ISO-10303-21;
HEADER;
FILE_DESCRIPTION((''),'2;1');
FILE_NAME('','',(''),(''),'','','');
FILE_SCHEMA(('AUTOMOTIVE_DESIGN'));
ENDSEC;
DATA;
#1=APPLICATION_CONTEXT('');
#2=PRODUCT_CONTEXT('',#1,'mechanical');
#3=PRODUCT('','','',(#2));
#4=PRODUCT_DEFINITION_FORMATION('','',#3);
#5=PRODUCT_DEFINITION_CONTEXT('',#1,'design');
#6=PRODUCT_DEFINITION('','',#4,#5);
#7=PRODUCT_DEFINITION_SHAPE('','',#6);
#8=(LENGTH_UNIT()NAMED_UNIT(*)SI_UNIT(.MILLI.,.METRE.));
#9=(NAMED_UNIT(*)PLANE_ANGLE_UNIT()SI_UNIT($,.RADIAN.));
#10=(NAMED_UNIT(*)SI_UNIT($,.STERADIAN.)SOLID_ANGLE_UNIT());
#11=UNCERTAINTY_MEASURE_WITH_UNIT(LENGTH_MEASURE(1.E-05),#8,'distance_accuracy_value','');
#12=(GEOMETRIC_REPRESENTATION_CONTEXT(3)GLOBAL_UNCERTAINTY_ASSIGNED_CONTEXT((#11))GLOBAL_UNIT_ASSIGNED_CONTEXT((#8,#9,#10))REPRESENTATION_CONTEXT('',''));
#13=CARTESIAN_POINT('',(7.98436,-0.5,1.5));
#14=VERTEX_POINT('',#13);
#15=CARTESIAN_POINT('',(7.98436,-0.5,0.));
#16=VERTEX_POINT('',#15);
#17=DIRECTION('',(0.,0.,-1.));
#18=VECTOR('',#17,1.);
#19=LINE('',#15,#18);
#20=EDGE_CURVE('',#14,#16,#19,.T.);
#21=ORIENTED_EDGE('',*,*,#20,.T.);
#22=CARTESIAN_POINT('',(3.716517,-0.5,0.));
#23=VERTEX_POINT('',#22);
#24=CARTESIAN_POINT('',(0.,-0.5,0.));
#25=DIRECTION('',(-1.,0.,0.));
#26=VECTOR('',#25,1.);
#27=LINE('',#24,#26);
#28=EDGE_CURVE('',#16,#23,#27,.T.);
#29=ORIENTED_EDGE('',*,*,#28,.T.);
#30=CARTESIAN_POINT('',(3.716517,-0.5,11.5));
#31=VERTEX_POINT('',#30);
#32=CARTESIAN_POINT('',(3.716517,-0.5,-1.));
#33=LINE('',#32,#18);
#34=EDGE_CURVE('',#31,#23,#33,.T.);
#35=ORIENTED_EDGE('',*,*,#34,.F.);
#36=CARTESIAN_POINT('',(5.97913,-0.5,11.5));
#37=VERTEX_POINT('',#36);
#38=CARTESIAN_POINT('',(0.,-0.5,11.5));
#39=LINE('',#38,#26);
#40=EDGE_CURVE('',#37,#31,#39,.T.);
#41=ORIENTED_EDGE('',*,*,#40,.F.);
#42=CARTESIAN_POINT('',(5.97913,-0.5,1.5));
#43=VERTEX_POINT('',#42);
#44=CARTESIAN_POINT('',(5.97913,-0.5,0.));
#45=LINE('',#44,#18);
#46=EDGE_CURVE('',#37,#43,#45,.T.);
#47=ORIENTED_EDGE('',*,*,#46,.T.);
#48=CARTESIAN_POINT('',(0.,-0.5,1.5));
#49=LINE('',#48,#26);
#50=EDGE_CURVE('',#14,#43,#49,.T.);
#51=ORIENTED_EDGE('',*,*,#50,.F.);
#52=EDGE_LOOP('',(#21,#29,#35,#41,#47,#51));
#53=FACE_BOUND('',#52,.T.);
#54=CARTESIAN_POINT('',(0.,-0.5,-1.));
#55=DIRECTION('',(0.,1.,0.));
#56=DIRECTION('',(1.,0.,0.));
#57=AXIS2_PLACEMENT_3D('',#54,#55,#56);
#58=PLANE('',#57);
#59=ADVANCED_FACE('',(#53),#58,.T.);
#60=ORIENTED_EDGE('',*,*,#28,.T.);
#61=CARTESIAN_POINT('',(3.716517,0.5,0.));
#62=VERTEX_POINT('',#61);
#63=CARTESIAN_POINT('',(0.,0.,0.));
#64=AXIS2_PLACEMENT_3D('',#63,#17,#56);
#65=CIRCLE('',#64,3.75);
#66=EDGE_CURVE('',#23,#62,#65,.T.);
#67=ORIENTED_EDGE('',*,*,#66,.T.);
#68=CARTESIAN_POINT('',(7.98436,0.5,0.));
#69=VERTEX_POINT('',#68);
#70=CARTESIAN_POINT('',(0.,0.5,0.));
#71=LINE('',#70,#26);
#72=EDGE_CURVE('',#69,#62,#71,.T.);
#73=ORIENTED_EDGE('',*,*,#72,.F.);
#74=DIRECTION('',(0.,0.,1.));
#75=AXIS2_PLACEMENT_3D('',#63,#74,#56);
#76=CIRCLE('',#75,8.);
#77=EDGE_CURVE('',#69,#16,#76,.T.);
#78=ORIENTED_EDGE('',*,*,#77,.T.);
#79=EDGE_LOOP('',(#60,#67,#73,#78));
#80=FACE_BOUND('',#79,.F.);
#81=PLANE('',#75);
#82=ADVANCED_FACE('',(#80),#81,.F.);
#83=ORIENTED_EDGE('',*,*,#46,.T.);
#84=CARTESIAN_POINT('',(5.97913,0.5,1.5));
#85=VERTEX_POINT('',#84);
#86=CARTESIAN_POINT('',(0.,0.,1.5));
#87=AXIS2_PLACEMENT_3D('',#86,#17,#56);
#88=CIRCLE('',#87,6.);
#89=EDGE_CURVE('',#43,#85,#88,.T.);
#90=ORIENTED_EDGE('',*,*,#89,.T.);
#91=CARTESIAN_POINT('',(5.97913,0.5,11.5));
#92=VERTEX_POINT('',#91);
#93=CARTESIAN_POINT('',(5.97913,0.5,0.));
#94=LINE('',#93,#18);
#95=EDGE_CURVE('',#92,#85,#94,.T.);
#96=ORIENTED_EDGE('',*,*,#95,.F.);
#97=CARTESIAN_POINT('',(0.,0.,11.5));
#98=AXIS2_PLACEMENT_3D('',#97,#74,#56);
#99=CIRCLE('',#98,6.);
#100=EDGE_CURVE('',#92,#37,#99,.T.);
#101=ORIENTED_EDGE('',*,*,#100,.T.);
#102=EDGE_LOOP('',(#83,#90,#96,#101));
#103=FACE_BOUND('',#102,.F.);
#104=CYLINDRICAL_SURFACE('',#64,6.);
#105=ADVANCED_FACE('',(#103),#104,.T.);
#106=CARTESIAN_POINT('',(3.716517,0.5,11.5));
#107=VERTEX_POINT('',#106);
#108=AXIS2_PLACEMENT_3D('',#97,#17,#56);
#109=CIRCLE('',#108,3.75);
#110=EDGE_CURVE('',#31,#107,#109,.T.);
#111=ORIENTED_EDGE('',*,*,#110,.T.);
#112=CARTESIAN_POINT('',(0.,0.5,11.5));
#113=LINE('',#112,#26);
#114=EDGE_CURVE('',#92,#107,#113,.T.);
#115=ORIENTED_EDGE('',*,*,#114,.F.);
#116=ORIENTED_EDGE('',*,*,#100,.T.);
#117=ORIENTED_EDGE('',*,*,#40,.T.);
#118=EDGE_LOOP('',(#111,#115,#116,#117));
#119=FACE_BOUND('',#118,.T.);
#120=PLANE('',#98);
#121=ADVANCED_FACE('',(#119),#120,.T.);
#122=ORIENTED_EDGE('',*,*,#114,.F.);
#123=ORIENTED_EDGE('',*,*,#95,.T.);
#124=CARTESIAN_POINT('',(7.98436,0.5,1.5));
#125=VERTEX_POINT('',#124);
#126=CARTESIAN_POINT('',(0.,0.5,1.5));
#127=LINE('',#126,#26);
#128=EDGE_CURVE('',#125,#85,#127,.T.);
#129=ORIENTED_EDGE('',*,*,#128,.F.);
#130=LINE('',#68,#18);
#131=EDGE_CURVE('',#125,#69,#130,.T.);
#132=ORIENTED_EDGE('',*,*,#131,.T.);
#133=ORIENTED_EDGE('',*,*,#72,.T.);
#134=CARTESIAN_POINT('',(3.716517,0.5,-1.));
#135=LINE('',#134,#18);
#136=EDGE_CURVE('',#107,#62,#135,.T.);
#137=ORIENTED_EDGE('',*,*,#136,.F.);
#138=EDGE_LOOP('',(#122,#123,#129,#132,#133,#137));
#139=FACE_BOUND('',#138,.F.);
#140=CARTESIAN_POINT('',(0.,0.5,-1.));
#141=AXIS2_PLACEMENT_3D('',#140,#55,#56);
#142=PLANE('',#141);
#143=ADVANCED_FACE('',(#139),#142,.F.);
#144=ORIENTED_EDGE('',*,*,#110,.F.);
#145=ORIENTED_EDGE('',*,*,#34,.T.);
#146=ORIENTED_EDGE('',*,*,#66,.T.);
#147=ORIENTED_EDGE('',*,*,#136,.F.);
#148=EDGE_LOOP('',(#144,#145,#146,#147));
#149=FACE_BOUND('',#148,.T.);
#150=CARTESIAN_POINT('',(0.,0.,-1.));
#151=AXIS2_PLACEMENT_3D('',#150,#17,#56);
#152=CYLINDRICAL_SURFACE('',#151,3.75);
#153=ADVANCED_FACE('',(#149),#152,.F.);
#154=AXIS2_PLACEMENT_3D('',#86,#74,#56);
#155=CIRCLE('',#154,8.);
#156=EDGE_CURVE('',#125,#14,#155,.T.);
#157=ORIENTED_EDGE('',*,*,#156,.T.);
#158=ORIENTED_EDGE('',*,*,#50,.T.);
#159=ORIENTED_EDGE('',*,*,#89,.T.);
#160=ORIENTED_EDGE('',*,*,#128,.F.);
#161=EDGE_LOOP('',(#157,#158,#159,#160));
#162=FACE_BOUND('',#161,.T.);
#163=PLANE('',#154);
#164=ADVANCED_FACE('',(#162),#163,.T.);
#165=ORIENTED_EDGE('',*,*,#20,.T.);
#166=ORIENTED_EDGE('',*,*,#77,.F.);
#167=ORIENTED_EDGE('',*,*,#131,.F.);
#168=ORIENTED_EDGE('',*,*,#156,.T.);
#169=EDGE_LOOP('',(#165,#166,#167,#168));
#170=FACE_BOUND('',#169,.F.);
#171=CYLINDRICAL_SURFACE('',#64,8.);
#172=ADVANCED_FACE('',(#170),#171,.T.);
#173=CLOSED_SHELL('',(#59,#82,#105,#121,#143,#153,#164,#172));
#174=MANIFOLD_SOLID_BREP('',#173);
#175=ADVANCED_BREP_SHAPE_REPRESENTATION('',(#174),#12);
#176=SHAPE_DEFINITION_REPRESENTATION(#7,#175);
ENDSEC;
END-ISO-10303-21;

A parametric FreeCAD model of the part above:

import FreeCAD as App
import Part
import Sketcher

V = App.Vector

doc = App.newDocument("Part")
body = doc.addObject("PartDesign::Body", "Body")

# Sketch on XY plane
sketch1 = body.newObject("Sketcher::SketchObject", "Sketch")
sketch1.AttachmentSupport = (doc.getObject("XY_Plane"), [""])
sketch1.MapMode = "FlatFace"
sketch1.AttachmentOffset = App.Placement(V(0, 0, -1), App.Rotation())
sketch1.addGeometry(Part.LineSegment(V(0, 0.5, 0), V(0, -0.5, 0)), False)
sketch1.addGeometry(Part.LineSegment(V(0, -0.5, 0), V(10, -0.5, 0)), False)
sketch1.addGeometry(Part.LineSegment(V(10, -0.5, 0), V(10, 0.5, 0)), False)
sketch1.addGeometry(Part.LineSegment(V(10, 0.5, 0), V(0, 0.5, 0)), False)
sketch1.addConstraint(Sketcher.Constraint("Coincident", 0, 2, 1, 1))
sketch1.addConstraint(Sketcher.Constraint("Coincident", 1, 2, 2, 1))
sketch1.addConstraint(Sketcher.Constraint("Coincident", 2, 2, 3, 1))
sketch1.addConstraint(Sketcher.Constraint("Coincident", 3, 2, 0, 1))
sketch1.addConstraint(Sketcher.Constraint("Vertical", 0))
sketch1.addConstraint(Sketcher.Constraint("Horizontal", 1))
sketch1.addConstraint(Sketcher.Constraint("Vertical", 2))
sketch1.addConstraint(Sketcher.Constraint("Horizontal", 3))
sketch1.addConstraint(Sketcher.Constraint("Symmetric", 0, 2, 3, 2, -1, 1))
sketch1.addConstraint(Sketcher.Constraint("DistanceX", 1, 1, 1, 2, 10.0))
sketch1.addConstraint(Sketcher.Constraint("DistanceY", 0, 2, 0, 1, 1.0))
pad1 = body.newObject("PartDesign::Pad", "Pad")
pad1.Profile = sketch1
pad1.Length = 14
body2 = doc.addObject("PartDesign::Body", "Body001")

# Sketch on XY plane
sketch2 = body2.newObject("Sketcher::SketchObject", "Sketch001")
sketch2.AttachmentSupport = (doc.getObject("XY_Plane001"), [""])
sketch2.MapMode = "FlatFace"
sketch2.AttachmentOffset = App.Placement(V(0, 0, -1), App.Rotation())
sketch2.addGeometry(Part.Circle(V(0, 0, 0), V(0, 0, 1), 3.8), False)
sketch2.addConstraint(Sketcher.Constraint("Coincident", 0, 3, -1, 1))
sketch2.addConstraint(Sketcher.Constraint("Diameter", 0, 7.5))
pad2 = body2.newObject("PartDesign::Pad", "Pad001")
pad2.Profile = sketch2
pad2.Length = 14
body3 = doc.addObject("PartDesign::Body", "Body002")

# Sketch on XY plane
sketch3 = body3.newObject("Sketcher::SketchObject", "Sketch002")
sketch3.AttachmentSupport = (doc.getObject("XY_Plane002"), [""])
sketch3.MapMode = "FlatFace"
sketch3.addGeometry(Part.Circle(V(0, 0, 0), V(0, 0, 1), 8), False)
sketch3.addConstraint(Sketcher.Constraint("Coincident", 0, 3, -1, 1))
sketch3.addConstraint(Sketcher.Constraint("Diameter", 0, 16.0))
pad3 = body3.newObject("PartDesign::Pad", "Pad002")
pad3.Profile = sketch3
pad3.Length = 1.5
body4 = doc.addObject("PartDesign::Body", "Body003")

# Sketch on XY plane
sketch4 = body4.newObject("Sketcher::SketchObject", "Sketch003")
sketch4.AttachmentSupport = (doc.getObject("XY_Plane003"), [""])
sketch4.MapMode = "FlatFace"
sketch4.addGeometry(Part.Circle(V(0, 0, 0), V(0, 0, 1), 6), False)
sketch4.addConstraint(Sketcher.Constraint("Coincident", 0, 3, -1, 1))
sketch4.addConstraint(Sketcher.Constraint("Diameter", 0, 12.0))
pad4 = body4.newObject("PartDesign::Pad", "Pad003")
pad4.Profile = sketch4
pad4.Length = 11.5
doc.recompute()

boolean = body4.newObject("PartDesign::Boolean", "Boolean")
boolean.Type = "Fuse"
boolean.addObjects([body3])
doc.recompute()

boolean2 = body4.newObject("PartDesign::Boolean", "Boolean001")
boolean2.Type = "Cut"
boolean2.addObjects([body2])
doc.recompute()

boolean3 = body4.newObject("PartDesign::Boolean", "Boolean002")
boolean3.Type = "Cut"
boolean3.addObjects([body])

doc.recompute()
